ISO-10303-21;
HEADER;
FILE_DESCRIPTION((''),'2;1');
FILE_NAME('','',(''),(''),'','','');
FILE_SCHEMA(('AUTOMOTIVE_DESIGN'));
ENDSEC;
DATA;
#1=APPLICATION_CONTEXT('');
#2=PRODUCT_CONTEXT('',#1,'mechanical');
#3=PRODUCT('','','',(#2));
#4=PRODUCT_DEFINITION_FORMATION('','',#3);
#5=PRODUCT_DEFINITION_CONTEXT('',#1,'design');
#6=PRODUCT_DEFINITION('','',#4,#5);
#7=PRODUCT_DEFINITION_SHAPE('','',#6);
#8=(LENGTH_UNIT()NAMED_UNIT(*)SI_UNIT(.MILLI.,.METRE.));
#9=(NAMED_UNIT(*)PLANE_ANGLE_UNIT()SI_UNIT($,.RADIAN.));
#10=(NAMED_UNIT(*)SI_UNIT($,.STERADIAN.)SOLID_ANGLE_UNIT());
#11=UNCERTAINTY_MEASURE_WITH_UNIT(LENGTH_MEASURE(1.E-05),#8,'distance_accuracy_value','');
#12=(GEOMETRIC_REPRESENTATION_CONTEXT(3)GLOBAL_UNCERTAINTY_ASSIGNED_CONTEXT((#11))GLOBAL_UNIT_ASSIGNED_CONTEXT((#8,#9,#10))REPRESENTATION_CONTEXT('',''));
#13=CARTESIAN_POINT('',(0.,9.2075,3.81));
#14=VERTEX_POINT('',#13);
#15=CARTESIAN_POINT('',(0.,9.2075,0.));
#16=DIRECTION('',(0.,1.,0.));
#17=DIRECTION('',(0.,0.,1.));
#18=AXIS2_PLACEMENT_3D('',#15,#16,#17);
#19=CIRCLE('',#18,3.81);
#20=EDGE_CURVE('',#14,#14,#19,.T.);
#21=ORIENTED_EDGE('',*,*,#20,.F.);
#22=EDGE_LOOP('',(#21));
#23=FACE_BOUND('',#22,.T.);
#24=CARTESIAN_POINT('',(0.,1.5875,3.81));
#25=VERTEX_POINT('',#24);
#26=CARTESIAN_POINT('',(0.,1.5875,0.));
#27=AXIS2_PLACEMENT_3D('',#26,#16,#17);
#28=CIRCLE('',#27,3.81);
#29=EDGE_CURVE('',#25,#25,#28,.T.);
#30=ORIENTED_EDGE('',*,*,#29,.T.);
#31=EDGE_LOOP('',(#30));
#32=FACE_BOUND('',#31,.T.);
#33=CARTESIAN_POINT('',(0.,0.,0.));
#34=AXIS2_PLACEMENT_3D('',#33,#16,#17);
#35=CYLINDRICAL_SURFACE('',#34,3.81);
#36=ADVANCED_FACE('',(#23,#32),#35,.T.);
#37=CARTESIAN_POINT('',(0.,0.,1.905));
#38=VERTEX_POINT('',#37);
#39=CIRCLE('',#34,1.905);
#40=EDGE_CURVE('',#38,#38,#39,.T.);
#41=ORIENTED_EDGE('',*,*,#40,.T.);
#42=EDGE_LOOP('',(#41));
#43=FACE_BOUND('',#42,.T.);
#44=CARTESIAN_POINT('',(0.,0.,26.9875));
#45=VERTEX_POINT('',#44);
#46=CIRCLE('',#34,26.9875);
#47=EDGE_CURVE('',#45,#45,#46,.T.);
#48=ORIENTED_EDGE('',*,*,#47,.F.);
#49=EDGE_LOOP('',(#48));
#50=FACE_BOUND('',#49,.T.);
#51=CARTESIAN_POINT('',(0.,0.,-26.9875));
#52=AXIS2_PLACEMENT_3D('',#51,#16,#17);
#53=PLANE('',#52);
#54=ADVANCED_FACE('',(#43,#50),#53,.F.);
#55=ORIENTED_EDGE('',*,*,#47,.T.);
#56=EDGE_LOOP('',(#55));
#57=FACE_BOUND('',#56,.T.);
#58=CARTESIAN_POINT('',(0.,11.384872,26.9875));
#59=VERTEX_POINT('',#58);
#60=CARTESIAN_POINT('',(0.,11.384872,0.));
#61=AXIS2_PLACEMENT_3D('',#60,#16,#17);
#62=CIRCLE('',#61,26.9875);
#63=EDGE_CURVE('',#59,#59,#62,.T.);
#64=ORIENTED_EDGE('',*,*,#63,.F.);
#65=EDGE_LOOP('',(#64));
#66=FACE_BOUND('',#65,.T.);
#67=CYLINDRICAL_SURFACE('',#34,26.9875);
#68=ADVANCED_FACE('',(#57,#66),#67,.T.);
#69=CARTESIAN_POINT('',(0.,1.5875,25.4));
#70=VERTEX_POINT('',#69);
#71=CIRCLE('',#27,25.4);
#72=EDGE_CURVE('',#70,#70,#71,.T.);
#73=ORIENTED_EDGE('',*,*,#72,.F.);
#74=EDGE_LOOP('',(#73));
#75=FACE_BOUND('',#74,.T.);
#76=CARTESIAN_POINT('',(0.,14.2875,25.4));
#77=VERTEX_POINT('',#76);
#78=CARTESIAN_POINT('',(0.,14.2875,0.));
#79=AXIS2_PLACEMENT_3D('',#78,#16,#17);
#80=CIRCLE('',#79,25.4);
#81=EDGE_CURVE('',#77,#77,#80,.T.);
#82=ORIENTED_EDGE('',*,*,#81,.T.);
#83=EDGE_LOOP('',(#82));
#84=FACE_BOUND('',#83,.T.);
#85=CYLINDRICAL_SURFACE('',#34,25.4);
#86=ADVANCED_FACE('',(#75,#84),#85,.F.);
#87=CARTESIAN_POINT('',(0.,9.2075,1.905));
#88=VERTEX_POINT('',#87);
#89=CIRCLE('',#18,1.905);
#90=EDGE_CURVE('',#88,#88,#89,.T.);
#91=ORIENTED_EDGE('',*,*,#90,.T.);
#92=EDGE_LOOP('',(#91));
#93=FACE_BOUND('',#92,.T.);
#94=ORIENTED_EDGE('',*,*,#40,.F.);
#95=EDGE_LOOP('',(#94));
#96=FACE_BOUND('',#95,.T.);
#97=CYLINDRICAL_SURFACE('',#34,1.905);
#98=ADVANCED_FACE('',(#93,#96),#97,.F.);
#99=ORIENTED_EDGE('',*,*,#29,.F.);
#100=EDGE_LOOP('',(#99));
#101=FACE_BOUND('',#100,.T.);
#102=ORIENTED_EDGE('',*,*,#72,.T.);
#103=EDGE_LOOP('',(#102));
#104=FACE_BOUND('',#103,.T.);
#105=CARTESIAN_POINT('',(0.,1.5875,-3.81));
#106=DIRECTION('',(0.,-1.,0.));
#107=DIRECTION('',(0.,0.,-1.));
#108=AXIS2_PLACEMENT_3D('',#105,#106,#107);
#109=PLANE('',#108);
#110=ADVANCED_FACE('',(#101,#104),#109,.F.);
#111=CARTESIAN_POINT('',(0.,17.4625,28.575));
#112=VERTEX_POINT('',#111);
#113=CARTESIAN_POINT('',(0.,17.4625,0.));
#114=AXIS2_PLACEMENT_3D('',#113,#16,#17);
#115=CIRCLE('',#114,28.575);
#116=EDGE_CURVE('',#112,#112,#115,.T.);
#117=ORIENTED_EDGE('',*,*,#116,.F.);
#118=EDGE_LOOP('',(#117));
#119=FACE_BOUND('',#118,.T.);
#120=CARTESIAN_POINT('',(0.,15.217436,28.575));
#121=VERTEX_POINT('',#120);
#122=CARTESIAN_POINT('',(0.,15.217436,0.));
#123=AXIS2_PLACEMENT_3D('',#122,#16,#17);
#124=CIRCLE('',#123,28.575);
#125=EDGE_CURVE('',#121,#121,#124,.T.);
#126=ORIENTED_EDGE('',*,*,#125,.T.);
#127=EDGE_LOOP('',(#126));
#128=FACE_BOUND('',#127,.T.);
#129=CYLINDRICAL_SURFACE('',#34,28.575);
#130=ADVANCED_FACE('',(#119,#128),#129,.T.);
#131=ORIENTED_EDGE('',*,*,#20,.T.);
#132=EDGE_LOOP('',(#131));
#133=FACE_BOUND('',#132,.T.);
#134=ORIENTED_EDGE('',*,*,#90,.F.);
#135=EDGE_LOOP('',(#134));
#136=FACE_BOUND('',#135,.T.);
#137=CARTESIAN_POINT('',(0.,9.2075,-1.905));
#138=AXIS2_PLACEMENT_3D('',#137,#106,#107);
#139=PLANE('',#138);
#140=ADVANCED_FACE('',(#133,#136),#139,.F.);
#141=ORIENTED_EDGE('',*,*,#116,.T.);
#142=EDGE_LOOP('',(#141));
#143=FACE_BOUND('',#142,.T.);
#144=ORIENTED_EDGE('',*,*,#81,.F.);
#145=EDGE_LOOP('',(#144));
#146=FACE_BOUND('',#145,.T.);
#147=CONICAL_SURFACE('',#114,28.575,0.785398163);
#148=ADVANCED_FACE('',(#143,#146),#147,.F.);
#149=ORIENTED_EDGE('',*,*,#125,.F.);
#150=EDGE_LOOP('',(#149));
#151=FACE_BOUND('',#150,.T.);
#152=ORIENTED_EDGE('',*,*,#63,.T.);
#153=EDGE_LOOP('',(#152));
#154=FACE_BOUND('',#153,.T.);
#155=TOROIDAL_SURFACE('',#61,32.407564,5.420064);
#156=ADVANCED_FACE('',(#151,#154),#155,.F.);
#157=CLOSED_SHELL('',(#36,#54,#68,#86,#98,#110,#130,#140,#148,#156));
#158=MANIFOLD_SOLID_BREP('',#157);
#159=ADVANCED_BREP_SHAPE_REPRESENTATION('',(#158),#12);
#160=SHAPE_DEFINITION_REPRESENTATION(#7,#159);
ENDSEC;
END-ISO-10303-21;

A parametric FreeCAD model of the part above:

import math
import FreeCAD as App
import Part
import Sketcher
from FreeCAD import Vector
Q = App.Units.Quantity

doc = App.newDocument("Part")
params = doc.addObject("Spreadsheet::Sheet", "Params")
for row, (alias, value) in enumerate([
    ("sketch1_width", "0.5 in"),
    ("sketch1_width2", "0.3 in"),
    ("sketch1_height", "0.85 in"),
    ("sketch1_height2", "0.075 in"),
    ("revolution_angle", "360 deg"),
], start=1):
    params.set(f"A{row}", alias)
    params.set(f"B{row}", "=" + value)
    params.setAlias(f"B{row}", alias)

body = doc.addObject("PartDesign::Body", "Body")

# Sketch on YZ plane
sketch1 = body.newObject("Sketcher::SketchObject", "Sketch")
sketch1.AttachmentSupport = (doc.getObject("YZ_Plane"), [""])
sketch1.MapMode = "FlatFace"
sketch1.addGeometry([
    Part.LineSegment(Vector(9.2, -1.9, 0), Vector(0, -1.9, 0)),  # 0
    Part.LineSegment(Vector(0, -1.9, 0), Vector(0, -27, 0)),  # 1
    Part.LineSegment(Vector(0, -27, 0), Vector(11.4, -27, 0)),  # 2
    Part.ArcOfCircle(Part.Circle(Vector(11.4, -32.4, 0), Vector(0, 0, 1), 5.4), math.radians(45), math.radians(90)),  # 3
    Part.LineSegment(Vector(15.2, -28.6, 0), Vector(17.5, -28.6, 0)),  # 4
    Part.LineSegment(Vector(17.5, -28.6, 0), Vector(14.3, -25.4, 0)),  # 5
    Part.LineSegment(Vector(14.3, -25.4, 0), Vector(1.6, -25.4, 0)),  # 6
    Part.LineSegment(Vector(1.6, -25.4, 0), Vector(1.6, -3.8, 0)),  # 7
    Part.LineSegment(Vector(1.6, -3.8, 0), Vector(9.2, -3.8, 0)),  # 8
    Part.LineSegment(Vector(9.2, -3.8, 0), Vector(9.2, -1.9, 0)),  # 9
], False)
sketch1.addConstraint([
    Sketcher.Constraint("Coincident", 0, 2, 1, 1),
    Sketcher.Constraint("Coincident", 1, 2, 2, 1),
    Sketcher.Constraint("Tangent", 2, 2, 3, 2),
    Sketcher.Constraint("Coincident", 3, 1, 4, 1),
    Sketcher.Constraint("Coincident", 4, 2, 5, 1),
    Sketcher.Constraint("Coincident", 5, 2, 6, 1),
    Sketcher.Constraint("Coincident", 6, 2, 7, 1),
    Sketcher.Constraint("Coincident", 7, 2, 8, 1),
    Sketcher.Constraint("Coincident", 8, 2, 9, 1),
    Sketcher.Constraint("Coincident", 9, 2, 0, 1),
    Sketcher.Constraint("Horizontal", 0),
    Sketcher.Constraint("Vertical", 1),
    Sketcher.Constraint("Horizontal", 2),
    Sketcher.Constraint("Horizontal", 4),
    Sketcher.Constraint("Horizontal", 6),
    Sketcher.Constraint("Vertical", 7),
    Sketcher.Constraint("Horizontal", 8),
    Sketcher.Constraint("Vertical", 9),
    Sketcher.Constraint("PointOnObject", 0, 2, -2),
    Sketcher.Constraint("DistanceX", 6, 2, 6, 1, Q("0.5 in")),
    Sketcher.Constraint("DistanceX", 8, 1, 8, 2, Q("0.3 in")),
    Sketcher.Constraint("DistanceY", 5, 2, -1, 1, Q("1 in")),
    Sketcher.Constraint("Angle", 5, Q("135 deg")),
    Sketcher.Constraint("DistanceY", 7, 1, 7, 2, Q("0.85 in")),
    Sketcher.Constraint("DistanceY", 9, 1, 9, 2, Q("0.075 in")),
    Sketcher.Constraint("DistanceY", 3, 1, 0, 2, Q("1.05 in")),
    Sketcher.Constraint("DistanceX", 0, 2, 0, 1, Q("0.3625 in")),
    Sketcher.Constraint("DistanceY", 1, 2, 1, 1, Q("0.9875 in")),
    Sketcher.Constraint("Radius", 3, Q("5.420064 mm")),
    Sketcher.Constraint("DistanceX", 2, 1, 2, 2, Q("11.384872 mm")),
])
sketch1.setExpression("Constraints[19]", "Params.sketch1_width")
sketch1.setExpression("Constraints[20]", "Params.sketch1_width2")
sketch1.setExpression("Constraints[23]", "Params.sketch1_height")
sketch1.setExpression("Constraints[24]", "Params.sketch1_height2")
revolution = body.newObject("PartDesign::Revolution", "Revolution")
revolution.Profile = sketch1
revolution.ReferenceAxis = (sketch1, ["H_Axis"])
revolution.setExpression("Angle", "Params.revolution_angle")

doc.recompute()
